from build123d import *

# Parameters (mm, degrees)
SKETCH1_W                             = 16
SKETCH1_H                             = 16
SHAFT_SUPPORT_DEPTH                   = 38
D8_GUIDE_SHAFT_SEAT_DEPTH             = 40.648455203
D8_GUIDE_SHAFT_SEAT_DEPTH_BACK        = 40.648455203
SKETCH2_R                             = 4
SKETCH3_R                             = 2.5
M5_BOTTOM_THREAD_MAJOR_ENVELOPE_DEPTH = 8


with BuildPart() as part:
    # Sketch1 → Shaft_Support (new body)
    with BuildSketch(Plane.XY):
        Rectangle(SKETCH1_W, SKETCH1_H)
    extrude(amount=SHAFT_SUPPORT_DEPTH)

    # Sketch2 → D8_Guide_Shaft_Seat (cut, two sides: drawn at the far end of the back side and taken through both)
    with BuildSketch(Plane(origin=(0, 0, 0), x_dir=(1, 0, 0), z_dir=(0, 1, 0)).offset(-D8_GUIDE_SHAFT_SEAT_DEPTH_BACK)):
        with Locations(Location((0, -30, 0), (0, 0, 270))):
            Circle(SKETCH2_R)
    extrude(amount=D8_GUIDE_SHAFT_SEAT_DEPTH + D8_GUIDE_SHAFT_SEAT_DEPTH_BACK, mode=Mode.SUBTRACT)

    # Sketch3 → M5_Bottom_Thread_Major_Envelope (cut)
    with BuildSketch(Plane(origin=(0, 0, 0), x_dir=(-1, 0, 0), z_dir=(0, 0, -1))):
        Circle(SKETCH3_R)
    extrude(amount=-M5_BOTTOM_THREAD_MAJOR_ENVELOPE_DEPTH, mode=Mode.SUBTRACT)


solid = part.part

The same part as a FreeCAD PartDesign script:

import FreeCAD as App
import Part
import Sketcher

V = App.Vector

doc = App.newDocument("Part")
params = doc.addObject("Spreadsheet::Sheet", "Params")
for row, (alias, value) in enumerate([
    ("sketch1_width", "16 mm"),
    ("pad1_length", "38 mm"),
    ("sketch2_diameter", "8 mm"),
    ("sketch3_diameter", "5 mm"),
    ("pocket2_length", "8 mm"),
], start=1):
    params.set(f"A{row}", alias)
    params.set(f"B{row}", "=" + value)
    params.setAlias(f"B{row}", alias)

body = doc.addObject("PartDesign::Body", "Body")

# Sketch on XY plane
sketch1 = doc.addObject("Sketcher::SketchObject", "Sketch")
body.addObject(sketch1)
sketch1.AttachmentSupport = (doc.XY_Plane, [""])
sketch1.MapMode = "FlatFace"
sketch1.addGeometry(Part.LineSegment(V(-8, 8, 0), V(-8, -8, 0)), False)
sketch1.addGeometry(Part.LineSegment(V(-8, -8, 0), V(8, -8, 0)), False)
sketch1.addGeometry(Part.LineSegment(V(8, -8, 0), V(8, 8, 0)), False)
sketch1.addGeometry(Part.LineSegment(V(8, 8, 0), V(-8, 8, 0)), False)
sketch1.addConstraint(Sketcher.Constraint("Coincident", 0, 2, 1, 1))
sketch1.addConstraint(Sketcher.Constraint("Coincident", 1, 2, 2, 1))
sketch1.addConstraint(Sketcher.Constraint("Coincident", 2, 2, 3, 1))
sketch1.addConstraint(Sketcher.Constraint("Coincident", 3, 2, 0, 1))
sketch1.addConstraint(Sketcher.Constraint("Vertical", 0))
sketch1.addConstraint(Sketcher.Constraint("Horizontal", 1))
sketch1.addConstraint(Sketcher.Constraint("Vertical", 2))
sketch1.addConstraint(Sketcher.Constraint("Horizontal", 3))
sketch1.addConstraint(Sketcher.Constraint("Symmetric", 0, 2, 2, 2, -1, 1))
sketch1.addConstraint(Sketcher.Constraint("Equal", 3, 0))
sketch1.addConstraint(Sketcher.Constraint("DistanceX", 1, 1, 1, 2, 16.0))
sketch1.setExpression("Constraints[10]", "Params.sketch1_width")
pad1 = doc.addObject("PartDesign::Pad", "Pad")
body.addObject(pad1)
pad1.Profile = sketch1
pad1.setExpression("Length", "Params.pad1_length")

# Sketch on XZ plane
sketch2 = doc.addObject("Sketcher::SketchObject", "Sketch001")
body.addObject(sketch2)
sketch2.AttachmentSupport = (doc.XZ_Plane, [""])
sketch2.MapMode = "FlatFace"
sketch2.addGeometry(Part.Circle(V(0, 30, 0), V(0, 0, 1), 4), False)
sketch2.addConstraint(Sketcher.Constraint("PointOnObject", 0, 3, -2))
sketch2.addConstraint(Sketcher.Constraint("Diameter", 0, 8.0))
sketch2.addConstraint(Sketcher.Constraint("DistanceY", -1, 1, 0, 3, 30.0))
sketch2.setExpression("Constraints[1]", "Params.sketch2_diameter")
pocket1 = doc.addObject("PartDesign::Pocket", "Pocket")
body.addObject(pocket1)
pocket1.Profile = sketch2
pocket1.Type = "ThroughAll"
pocket1.Midplane = True

# Sketch on XY plane
sketch3 = doc.addObject("Sketcher::SketchObject", "Sketch002")
body.addObject(sketch3)
sketch3.AttachmentSupport = (doc.XY_Plane, [""])
sketch3.MapMode = "FlatFace"
sketch3.addGeometry(Part.Circle(V(0, 0, 0), V(0, 0, 1), 2.5), False)
sketch3.addConstraint(Sketcher.Constraint("Coincident", 0, 3, -1, 1))
sketch3.addConstraint(Sketcher.Constraint("Diameter", 0, 5.0))
sketch3.setExpression("Constraints[1]", "Params.sketch3_diameter")
pocket2 = doc.addObject("PartDesign::Pocket", "Pocket001")
body.addObject(pocket2)
pocket2.Profile = sketch3
pocket2.setExpression("Length", "Params.pocket2_length")
pocket2.Reversed = True

doc.recompute()
